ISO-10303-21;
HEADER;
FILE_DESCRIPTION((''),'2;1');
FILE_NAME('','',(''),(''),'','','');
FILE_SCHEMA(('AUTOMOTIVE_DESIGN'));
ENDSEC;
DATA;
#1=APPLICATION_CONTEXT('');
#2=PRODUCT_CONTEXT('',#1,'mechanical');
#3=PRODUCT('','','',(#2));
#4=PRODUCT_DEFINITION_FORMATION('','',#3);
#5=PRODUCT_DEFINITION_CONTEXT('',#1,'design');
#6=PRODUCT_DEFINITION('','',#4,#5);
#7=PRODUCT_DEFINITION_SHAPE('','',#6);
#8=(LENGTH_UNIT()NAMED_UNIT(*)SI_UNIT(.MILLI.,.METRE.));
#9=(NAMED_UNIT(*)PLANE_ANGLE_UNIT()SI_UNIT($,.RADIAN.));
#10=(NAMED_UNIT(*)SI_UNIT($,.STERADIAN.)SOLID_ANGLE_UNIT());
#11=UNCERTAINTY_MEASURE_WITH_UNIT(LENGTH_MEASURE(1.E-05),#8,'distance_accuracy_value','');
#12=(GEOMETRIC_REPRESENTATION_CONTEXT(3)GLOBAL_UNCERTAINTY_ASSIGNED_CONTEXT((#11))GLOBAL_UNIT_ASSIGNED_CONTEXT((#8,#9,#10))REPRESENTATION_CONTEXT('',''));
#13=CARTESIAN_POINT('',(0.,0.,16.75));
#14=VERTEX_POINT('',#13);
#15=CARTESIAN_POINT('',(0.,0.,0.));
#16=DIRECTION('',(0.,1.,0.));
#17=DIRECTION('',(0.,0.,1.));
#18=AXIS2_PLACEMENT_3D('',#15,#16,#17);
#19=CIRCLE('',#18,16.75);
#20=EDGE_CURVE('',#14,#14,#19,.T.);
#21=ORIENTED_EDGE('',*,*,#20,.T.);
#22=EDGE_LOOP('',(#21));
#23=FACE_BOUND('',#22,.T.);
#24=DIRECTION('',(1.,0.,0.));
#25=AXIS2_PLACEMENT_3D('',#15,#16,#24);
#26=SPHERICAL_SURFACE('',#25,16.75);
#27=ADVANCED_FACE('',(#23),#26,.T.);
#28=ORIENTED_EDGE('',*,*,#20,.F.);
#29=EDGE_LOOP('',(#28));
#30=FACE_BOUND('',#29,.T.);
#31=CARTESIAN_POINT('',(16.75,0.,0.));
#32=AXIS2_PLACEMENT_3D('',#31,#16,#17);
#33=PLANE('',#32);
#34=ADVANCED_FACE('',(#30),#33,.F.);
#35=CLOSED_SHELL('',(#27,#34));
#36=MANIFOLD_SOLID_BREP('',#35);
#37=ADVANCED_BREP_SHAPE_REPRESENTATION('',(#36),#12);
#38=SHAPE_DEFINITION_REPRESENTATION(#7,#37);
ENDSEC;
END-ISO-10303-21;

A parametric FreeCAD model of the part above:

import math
import FreeCAD as App
import Part
import Sketcher
from FreeCAD import Vector

doc = App.newDocument("Part")
body = doc.addObject("PartDesign::Body", "Body")

# Sketch on XY plane
sketch1 = doc.addObject("Sketcher::SketchObject", "Sketch")
body.addObject(sketch1)
sketch1.AttachmentSupport = (doc.XY_Plane, [""])
sketch1.MapMode = "FlatFace"
sketch1.addGeometry([
    Part.LineSegment(Vector(0, 0, 0), Vector(16.75, 0, 0)),
    Part.ArcOfCircle(Part.Circle(Vector(0, 0, 0), Vector(0, 0, 1), 16.75), math.radians(0), math.radians(90)),
    Part.LineSegment(Vector(0, 16.75, 0), Vector(0, 0, 0)),
], False)
sketch1.addConstraint([
    Sketcher.Constraint("Coincident", 0, 2, 1, 1),
    Sketcher.Constraint("Coincident", 1, 2, 2, 1),
    Sketcher.Constraint("Coincident", 2, 2, 0, 1),
    Sketcher.Constraint("Horizontal", 0),
    Sketcher.Constraint("Vertical", 2),
    Sketcher.Constraint("Coincident", 1, 3, -1, 1),
    Sketcher.Constraint("Coincident", 2, 2, -1, 1),
    Sketcher.Constraint("Radius", 1, 16.75),
])
revolution = doc.addObject("PartDesign::Revolution", "Revolution")
body.addObject(revolution)
revolution.Profile = sketch1
revolution.ReferenceAxis = (sketch1, ["V_Axis"])
revolution.Angle = 360

doc.recompute()
